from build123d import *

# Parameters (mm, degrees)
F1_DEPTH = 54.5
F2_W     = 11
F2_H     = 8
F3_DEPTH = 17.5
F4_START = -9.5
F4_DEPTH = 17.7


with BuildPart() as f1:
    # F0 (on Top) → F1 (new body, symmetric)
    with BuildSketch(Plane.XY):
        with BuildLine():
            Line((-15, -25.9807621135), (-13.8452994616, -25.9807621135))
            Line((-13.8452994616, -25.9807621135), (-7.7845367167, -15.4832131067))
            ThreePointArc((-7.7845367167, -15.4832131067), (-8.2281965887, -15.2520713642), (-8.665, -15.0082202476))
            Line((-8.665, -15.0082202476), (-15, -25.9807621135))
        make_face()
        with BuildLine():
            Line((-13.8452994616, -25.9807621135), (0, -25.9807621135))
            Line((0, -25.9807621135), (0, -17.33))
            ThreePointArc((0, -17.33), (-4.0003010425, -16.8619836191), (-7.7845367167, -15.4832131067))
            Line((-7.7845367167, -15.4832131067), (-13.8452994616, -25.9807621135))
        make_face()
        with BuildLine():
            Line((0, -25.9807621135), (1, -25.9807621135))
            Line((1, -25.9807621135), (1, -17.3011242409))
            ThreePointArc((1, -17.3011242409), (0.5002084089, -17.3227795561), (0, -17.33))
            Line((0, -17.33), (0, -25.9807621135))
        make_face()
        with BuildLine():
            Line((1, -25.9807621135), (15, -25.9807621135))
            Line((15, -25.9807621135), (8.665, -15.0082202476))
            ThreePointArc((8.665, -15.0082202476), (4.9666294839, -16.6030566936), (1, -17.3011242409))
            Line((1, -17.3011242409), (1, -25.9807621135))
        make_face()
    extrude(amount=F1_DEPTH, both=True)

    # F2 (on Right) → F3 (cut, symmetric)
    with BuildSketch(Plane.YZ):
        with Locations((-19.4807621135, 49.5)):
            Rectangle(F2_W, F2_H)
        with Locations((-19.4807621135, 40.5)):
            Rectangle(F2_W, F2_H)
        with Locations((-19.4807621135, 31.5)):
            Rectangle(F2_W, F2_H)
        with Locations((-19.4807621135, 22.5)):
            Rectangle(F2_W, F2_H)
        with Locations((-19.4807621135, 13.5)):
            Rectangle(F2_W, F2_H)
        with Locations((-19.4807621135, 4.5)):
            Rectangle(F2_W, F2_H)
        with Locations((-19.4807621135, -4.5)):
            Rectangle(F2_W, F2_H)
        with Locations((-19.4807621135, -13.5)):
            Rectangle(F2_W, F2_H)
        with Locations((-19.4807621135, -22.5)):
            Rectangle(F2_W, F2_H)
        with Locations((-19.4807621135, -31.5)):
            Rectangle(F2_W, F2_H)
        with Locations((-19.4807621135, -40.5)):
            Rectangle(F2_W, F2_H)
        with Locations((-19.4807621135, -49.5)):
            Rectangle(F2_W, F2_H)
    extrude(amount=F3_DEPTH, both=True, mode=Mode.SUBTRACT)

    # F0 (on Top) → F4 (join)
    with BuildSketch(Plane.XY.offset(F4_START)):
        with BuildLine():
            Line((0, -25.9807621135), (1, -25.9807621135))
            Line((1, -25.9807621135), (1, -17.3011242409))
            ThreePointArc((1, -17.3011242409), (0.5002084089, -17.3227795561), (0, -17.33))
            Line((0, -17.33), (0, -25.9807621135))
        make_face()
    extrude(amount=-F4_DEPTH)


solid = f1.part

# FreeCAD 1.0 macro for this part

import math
import FreeCAD as App
import Part
import Sketcher

V = App.Vector
Q = App.Units.Quantity


def add_polygon(sketch, points):
    """Adds a closed chain of lines whose ends are joined by coincident constraints."""
    first, n = sketch.GeometryCount, len(points)
    for a, b in zip(points, points[1:] + points[:1]):
        sketch.addGeometry(Part.LineSegment(App.Vector(*a, 0), App.Vector(*b, 0)), False)
    for i in range(n):
        sketch.addConstraint(Sketcher.Constraint("Coincident", first + i, 2, first + (i + 1) % n, 1))

doc = App.newDocument("Part")
params = doc.addObject("Spreadsheet::Sheet", "Params")
for row, (alias, value) in enumerate([
    ("sketch1_width", "30 mm"),
    ("sketch1_radius", "17.33 mm"),
    ("sketch1_length", "12.67 mm"),
    ("pad1_length", "109 mm"),
    ("sketch2_width", "11 mm"),
    ("sketch2_height", "8 mm"),
    ("pocket1_length", "35 mm"),
    ("sketch3_width", "1 mm"),
    ("sketch3_radius", "17.33 mm"),
    ("pad2_length", "17.7 mm"),
], start=1):
    params.set(f"A{row}", alias)
    params.set(f"B{row}", "=" + value)
    params.setAlias(f"B{row}", alias)

body = doc.addObject("PartDesign::Body", "Body")

sketch1 = doc.addObject("Sketcher::SketchObject", "Sketch")
body.addObject(sketch1)
sketch1.AttachmentSupport = (doc.XY_Plane, [""])
sketch1.MapMode = "FlatFace"
sketch1.addGeometry([
    Part.LineSegment(V(-15, -25.980762, 0), V(15, -25.980762, 0)),
    Part.LineSegment(V(15, -25.980762, 0), V(8.665, -15.00822, 0)),
    Part.ArcOfCircle(Part.Circle(V(0, 0, 0), V(0, 0, 1), 17.33), math.radians(-86.692001), math.radians(-60)),
    Part.ArcOfCircle(Part.Circle(V(0, 0, 0), V(0, 0, 1), 17.33), math.radians(-90), math.radians(-86.692001)),
    Part.ArcOfCircle(Part.Circle(V(0, 0, 0), V(0, 0, 1), 17.33), math.radians(-116.692001), math.radians(-90)),
    Part.ArcOfCircle(Part.Circle(V(0, 0, 0), V(0, 0, 1), 17.33), math.radians(-120), math.radians(-116.692001)),
    Part.LineSegment(V(-8.665, -15.00822, 0), V(-15, -25.980762, 0)),
], False)
sketch1.addConstraint([
    Sketcher.Constraint("Coincident", 0, 2, 1, 1),
    Sketcher.Constraint("Coincident", 1, 2, 2, 2),
    Sketcher.Constraint("Tangent", 2, 1, 3, 2),
    Sketcher.Constraint("Tangent", 3, 1, 4, 2),
    Sketcher.Constraint("Tangent", 4, 1, 5, 2),
    Sketcher.Constraint("Coincident", 5, 1, 6, 1),
    Sketcher.Constraint("Coincident", 6, 2, 0, 1),
    Sketcher.Constraint("Horizontal", 0),
    Sketcher.Constraint("Coincident", 2, 3, -1, 1),
    Sketcher.Constraint("Coincident", 4, 3, -1, 1),
    Sketcher.Constraint("Equal", 4, 5),
    Sketcher.Constraint("PointOnObject", 3, 1, -2),
    Sketcher.Constraint("Horizontal", 1, 2, 5, 1),
    Sketcher.Constraint("Equal", 1, 6),
    Sketcher.Constraint("DistanceX", 0, 1, 0, 2, Q("30 mm")),
    Sketcher.Constraint("Angle", 1, Q("120 deg")),
    Sketcher.Constraint("Radius", 2, Q("17.33 mm")),
    Sketcher.Constraint("DistanceX", -1, 1, 2, 1, Q("1 mm")),
    Sketcher.Constraint("Distance", 1, Q("12.67 mm")),
    Sketcher.Constraint("DistanceY", 2, 1, 4, 1, Q("1.817911 mm")),
])
sketch1.setExpression("Constraints[14]", "Params.sketch1_width")
sketch1.setExpression("Constraints[16]", "Params.sketch1_radius")
sketch1.setExpression("Constraints[18]", "Params.sketch1_length")
pad1 = doc.addObject("PartDesign::Pad", "Pad")
body.addObject(pad1)
pad1.Profile = sketch1
pad1.setExpression("Length", "Params.pad1_length")
pad1.Midplane = True

sketch2 = doc.addObject("Sketcher::SketchObject", "Sketch001")
body.addObject(sketch2)
sketch2.AttachmentSupport = (doc.YZ_Plane, [""])
sketch2.MapMode = "FlatFace"
add_polygon(sketch2, [(-24.980762, 53.5), (-24.980762, 45.5), (-13.980762, 45.5), (-13.980762, 53.5)])
add_polygon(sketch2, [(-24.980762, 44.5), (-24.980762, 36.5), (-13.980762, 36.5), (-13.980762, 44.5)])
add_polygon(sketch2, [(-24.980762, 35.5), (-24.980762, 27.5), (-13.980762, 27.5), (-13.980762, 35.5)])
add_polygon(sketch2, [(-24.980762, 26.5), (-24.980762, 18.5), (-13.980762, 18.5), (-13.980762, 26.5)])
add_polygon(sketch2, [(-24.980762, 17.5), (-24.980762, 9.5), (-13.980762, 9.5), (-13.980762, 17.5)])
add_polygon(sketch2, [(-24.980762, 8.5), (-24.980762, 0.5), (-13.980762, 0.5), (-13.980762, 8.5)])
add_polygon(sketch2, [(-24.980762, -0.5), (-24.980762, -8.5), (-13.980762, -8.5), (-13.980762, -0.5)])
add_polygon(sketch2, [(-24.980762, -9.5), (-24.980762, -17.5), (-13.980762, -17.5), (-13.980762, -9.5)])
add_polygon(sketch2, [(-24.980762, -18.5), (-24.980762, -26.5), (-13.980762, -26.5), (-13.980762, -18.5)])
add_polygon(sketch2, [(-24.980762, -27.5), (-24.980762, -35.5), (-13.980762, -35.5), (-13.980762, -27.5)])
add_polygon(sketch2, [(-24.980762, -36.5), (-24.980762, -44.5), (-13.980762, -44.5), (-13.980762, -36.5)])
add_polygon(sketch2, [(-24.980762, -45.5), (-24.980762, -53.5), (-13.980762, -53.5), (-13.980762, -45.5)])
sketch2.addConstraint([
    Sketcher.Constraint("Vertical", 0),
    Sketcher.Constraint("Horizontal", 1),
    Sketcher.Constraint("Vertical", 2),
    Sketcher.Constraint("Horizontal", 3),
    Sketcher.Constraint("Vertical", 4),
    Sketcher.Constraint("Horizontal", 5),
    Sketcher.Constraint("Vertical", 6),
    Sketcher.Constraint("Horizontal", 7),
    Sketcher.Constraint("Vertical", 8),
    Sketcher.Constraint("Horizontal", 9),
    Sketcher.Constraint("Vertical", 10),
    Sketcher.Constraint("Horizontal", 11),
    Sketcher.Constraint("Vertical", 12),
    Sketcher.Constraint("Horizontal", 13),
    Sketcher.Constraint("Vertical", 14),
    Sketcher.Constraint("Horizontal", 15),
    Sketcher.Constraint("Vertical", 16),
    Sketcher.Constraint("Horizontal", 17),
    Sketcher.Constraint("Vertical", 18),
    Sketcher.Constraint("Horizontal", 19),
    Sketcher.Constraint("Vertical", 20),
    Sketcher.Constraint("Horizontal", 21),
    Sketcher.Constraint("Vertical", 22),
    Sketcher.Constraint("Horizontal", 23),
    Sketcher.Constraint("Vertical", 24),
    Sketcher.Constraint("Horizontal", 25),
    Sketcher.Constraint("Vertical", 26),
    Sketcher.Constraint("Horizontal", 27),
    Sketcher.Constraint("Vertical", 28),
    Sketcher.Constraint("Horizontal", 29),
    Sketcher.Constraint("Vertical", 30),
    Sketcher.Constraint("Horizontal", 31),
    Sketcher.Constraint("Vertical", 32),
    Sketcher.Constraint("Horizontal", 33),
    Sketcher.Constraint("Vertical", 34),
    Sketcher.Constraint("Horizontal", 35),
    Sketcher.Constraint("Vertical", 36),
    Sketcher.Constraint("Horizontal", 37),
    Sketcher.Constraint("Vertical", 38),
    Sketcher.Constraint("Horizontal", 39),
    Sketcher.Constraint("Vertical", 40),
    Sketcher.Constraint("Horizontal", 41),
    Sketcher.Constraint("Vertical", 42),
    Sketcher.Constraint("Horizontal", 43),
    Sketcher.Constraint("Vertical", 44),
    Sketcher.Constraint("Horizontal", 45),
    Sketcher.Constraint("Vertical", 46),
    Sketcher.Constraint("Horizontal", 47),
    Sketcher.Constraint("Symmetric", 23, 2, 24, 2, -1),
    Sketcher.Constraint("Symmetric", 21, 2, 26, 2, -1),
    Sketcher.Constraint("Symmetric", 19, 2, 28, 2, -1),
    Sketcher.Constraint("Symmetric", 17, 2, 30, 2, -1),
    Sketcher.Constraint("Symmetric", 15, 2, 32, 2, -1),
    Sketcher.Constraint("Symmetric", 13, 2, 34, 2, -1),
    Sketcher.Constraint("Symmetric", 11, 2, 36, 2, -1),
    Sketcher.Constraint("Symmetric", 9, 2, 38, 2, -1),
    Sketcher.Constraint("Symmetric", 7, 2, 40, 2, -1),
    Sketcher.Constraint("Symmetric", 5, 2, 42, 2, -1),
    Sketcher.Constraint("Symmetric", 3, 2, 44, 2, -1),
    Sketcher.Constraint("Symmetric", 1, 2, 46, 2, -1),
    Sketcher.Constraint("Vertical", 3, 2, 4, 2),
    Sketcher.Constraint("Vertical", 2, 2, 5, 2),
    Sketcher.Constraint("Vertical", 7, 2, 8, 2),
    Sketcher.Constraint("Vertical", 6, 2, 9, 2),
    Sketcher.Constraint("Vertical", 11, 2, 12, 2),
    Sketcher.Constraint("Vertical", 10, 2, 13, 2),
    Sketcher.Constraint("Vertical", 15, 2, 16, 2),
    Sketcher.Constraint("Vertical", 14, 2, 17, 2),
    Sketcher.Constraint("Vertical", 19, 2, 20, 2),
    Sketcher.Constraint("Vertical", 18, 2, 21, 2),
    Sketcher.Constraint("Equal", 2, 4),
    Sketcher.Constraint("Equal", 6, 8),
    Sketcher.Constraint("Equal", 10, 12),
    Sketcher.Constraint("Equal", 14, 16),
    Sketcher.Constraint("Equal", 18, 20),
    Sketcher.Constraint("DistanceX", 1, 1, 1, 2, Q("11 mm")),
    Sketcher.Constraint("DistanceY", 0, 2, 0, 1, Q("8 mm")),
    Sketcher.Constraint("DistanceY", 4, 2, 0, 2, Q("9 mm")),
    Sketcher.Constraint("DistanceY", 8, 2, 4, 2, Q("9 mm")),
    Sketcher.Constraint("DistanceY", 12, 2, 8, 2, Q("9 mm")),
    Sketcher.Constraint("DistanceY", 16, 2, 12, 2, Q("9 mm")),
    Sketcher.Constraint("DistanceY", 20, 2, 16, 2, Q("9 mm")),
    Sketcher.Constraint("DistanceY", 24, 2, 20, 2, Q("9 mm")),
    Sketcher.Constraint("DistanceX", 0, 2, -1, 1, Q("24.980762 mm")),
])
sketch2.setExpression("Constraints[123]", "Params.sketch2_width")
sketch2.setExpression("Constraints[124]", "Params.sketch2_height")
pocket1 = doc.addObject("PartDesign::Pocket", "Pocket")
body.addObject(pocket1)
pocket1.Profile = sketch2
pocket1.setExpression("Length", "Params.pocket1_length")
pocket1.Midplane = True

sketch3 = doc.addObject("Sketcher::SketchObject", "Sketch002")
body.addObject(sketch3)
sketch3.AttachmentSupport = (doc.XY_Plane, [""])
sketch3.MapMode = "FlatFace"
sketch3.AttachmentOffset = App.Placement(V(0, 0, -9.5), App.Rotation())
sketch3.addGeometry([
    Part.LineSegment(V(0, -25.980762, 0), V(1, -25.980762, 0)),
    Part.LineSegment(V(1, -25.980762, 0), V(1, -17.301124, 0)),
    Part.ArcOfCircle(Part.Circle(V(0, 0, 0), V(0, 0, 1), 17.33), math.radians(-90), math.radians(-86.692001)),
    Part.LineSegment(V(0, -17.33, 0), V(0, -25.980762, 0)),
], False)
sketch3.addConstraint([
    Sketcher.Constraint("Coincident", 0, 2, 1, 1),
    Sketcher.Constraint("Coincident", 1, 2, 2, 2),
    Sketcher.Constraint("Coincident", 2, 1, 3, 1),
    Sketcher.Constraint("Coincident", 3, 2, 0, 1),
    Sketcher.Constraint("Horizontal", 0),
    Sketcher.Constraint("Vertical", 1),
    Sketcher.Constraint("Vertical", 3),
    Sketcher.Constraint("Coincident", 2, 3, -1, 1),
    Sketcher.Constraint("PointOnObject", 2, 1, -2),
    Sketcher.Constraint("DistanceX", 0, 1, 0, 2, Q("1 mm")),
    Sketcher.Constraint("Radius", 2, Q("17.33 mm")),
    Sketcher.Constraint("DistanceY", 1, 1, 1, 2, Q("8.679638 mm")),
])
sketch3.setExpression("Constraints[9]", "Params.sketch3_width")
sketch3.setExpression("Constraints[10]", "Params.sketch3_radius")
pad2 = doc.addObject("PartDesign::Pad", "Pad001")
body.addObject(pad2)
pad2.Profile = sketch3
pad2.setExpression("Length", "Params.pad2_length")
pad2.Reversed = True

doc.recompute()
